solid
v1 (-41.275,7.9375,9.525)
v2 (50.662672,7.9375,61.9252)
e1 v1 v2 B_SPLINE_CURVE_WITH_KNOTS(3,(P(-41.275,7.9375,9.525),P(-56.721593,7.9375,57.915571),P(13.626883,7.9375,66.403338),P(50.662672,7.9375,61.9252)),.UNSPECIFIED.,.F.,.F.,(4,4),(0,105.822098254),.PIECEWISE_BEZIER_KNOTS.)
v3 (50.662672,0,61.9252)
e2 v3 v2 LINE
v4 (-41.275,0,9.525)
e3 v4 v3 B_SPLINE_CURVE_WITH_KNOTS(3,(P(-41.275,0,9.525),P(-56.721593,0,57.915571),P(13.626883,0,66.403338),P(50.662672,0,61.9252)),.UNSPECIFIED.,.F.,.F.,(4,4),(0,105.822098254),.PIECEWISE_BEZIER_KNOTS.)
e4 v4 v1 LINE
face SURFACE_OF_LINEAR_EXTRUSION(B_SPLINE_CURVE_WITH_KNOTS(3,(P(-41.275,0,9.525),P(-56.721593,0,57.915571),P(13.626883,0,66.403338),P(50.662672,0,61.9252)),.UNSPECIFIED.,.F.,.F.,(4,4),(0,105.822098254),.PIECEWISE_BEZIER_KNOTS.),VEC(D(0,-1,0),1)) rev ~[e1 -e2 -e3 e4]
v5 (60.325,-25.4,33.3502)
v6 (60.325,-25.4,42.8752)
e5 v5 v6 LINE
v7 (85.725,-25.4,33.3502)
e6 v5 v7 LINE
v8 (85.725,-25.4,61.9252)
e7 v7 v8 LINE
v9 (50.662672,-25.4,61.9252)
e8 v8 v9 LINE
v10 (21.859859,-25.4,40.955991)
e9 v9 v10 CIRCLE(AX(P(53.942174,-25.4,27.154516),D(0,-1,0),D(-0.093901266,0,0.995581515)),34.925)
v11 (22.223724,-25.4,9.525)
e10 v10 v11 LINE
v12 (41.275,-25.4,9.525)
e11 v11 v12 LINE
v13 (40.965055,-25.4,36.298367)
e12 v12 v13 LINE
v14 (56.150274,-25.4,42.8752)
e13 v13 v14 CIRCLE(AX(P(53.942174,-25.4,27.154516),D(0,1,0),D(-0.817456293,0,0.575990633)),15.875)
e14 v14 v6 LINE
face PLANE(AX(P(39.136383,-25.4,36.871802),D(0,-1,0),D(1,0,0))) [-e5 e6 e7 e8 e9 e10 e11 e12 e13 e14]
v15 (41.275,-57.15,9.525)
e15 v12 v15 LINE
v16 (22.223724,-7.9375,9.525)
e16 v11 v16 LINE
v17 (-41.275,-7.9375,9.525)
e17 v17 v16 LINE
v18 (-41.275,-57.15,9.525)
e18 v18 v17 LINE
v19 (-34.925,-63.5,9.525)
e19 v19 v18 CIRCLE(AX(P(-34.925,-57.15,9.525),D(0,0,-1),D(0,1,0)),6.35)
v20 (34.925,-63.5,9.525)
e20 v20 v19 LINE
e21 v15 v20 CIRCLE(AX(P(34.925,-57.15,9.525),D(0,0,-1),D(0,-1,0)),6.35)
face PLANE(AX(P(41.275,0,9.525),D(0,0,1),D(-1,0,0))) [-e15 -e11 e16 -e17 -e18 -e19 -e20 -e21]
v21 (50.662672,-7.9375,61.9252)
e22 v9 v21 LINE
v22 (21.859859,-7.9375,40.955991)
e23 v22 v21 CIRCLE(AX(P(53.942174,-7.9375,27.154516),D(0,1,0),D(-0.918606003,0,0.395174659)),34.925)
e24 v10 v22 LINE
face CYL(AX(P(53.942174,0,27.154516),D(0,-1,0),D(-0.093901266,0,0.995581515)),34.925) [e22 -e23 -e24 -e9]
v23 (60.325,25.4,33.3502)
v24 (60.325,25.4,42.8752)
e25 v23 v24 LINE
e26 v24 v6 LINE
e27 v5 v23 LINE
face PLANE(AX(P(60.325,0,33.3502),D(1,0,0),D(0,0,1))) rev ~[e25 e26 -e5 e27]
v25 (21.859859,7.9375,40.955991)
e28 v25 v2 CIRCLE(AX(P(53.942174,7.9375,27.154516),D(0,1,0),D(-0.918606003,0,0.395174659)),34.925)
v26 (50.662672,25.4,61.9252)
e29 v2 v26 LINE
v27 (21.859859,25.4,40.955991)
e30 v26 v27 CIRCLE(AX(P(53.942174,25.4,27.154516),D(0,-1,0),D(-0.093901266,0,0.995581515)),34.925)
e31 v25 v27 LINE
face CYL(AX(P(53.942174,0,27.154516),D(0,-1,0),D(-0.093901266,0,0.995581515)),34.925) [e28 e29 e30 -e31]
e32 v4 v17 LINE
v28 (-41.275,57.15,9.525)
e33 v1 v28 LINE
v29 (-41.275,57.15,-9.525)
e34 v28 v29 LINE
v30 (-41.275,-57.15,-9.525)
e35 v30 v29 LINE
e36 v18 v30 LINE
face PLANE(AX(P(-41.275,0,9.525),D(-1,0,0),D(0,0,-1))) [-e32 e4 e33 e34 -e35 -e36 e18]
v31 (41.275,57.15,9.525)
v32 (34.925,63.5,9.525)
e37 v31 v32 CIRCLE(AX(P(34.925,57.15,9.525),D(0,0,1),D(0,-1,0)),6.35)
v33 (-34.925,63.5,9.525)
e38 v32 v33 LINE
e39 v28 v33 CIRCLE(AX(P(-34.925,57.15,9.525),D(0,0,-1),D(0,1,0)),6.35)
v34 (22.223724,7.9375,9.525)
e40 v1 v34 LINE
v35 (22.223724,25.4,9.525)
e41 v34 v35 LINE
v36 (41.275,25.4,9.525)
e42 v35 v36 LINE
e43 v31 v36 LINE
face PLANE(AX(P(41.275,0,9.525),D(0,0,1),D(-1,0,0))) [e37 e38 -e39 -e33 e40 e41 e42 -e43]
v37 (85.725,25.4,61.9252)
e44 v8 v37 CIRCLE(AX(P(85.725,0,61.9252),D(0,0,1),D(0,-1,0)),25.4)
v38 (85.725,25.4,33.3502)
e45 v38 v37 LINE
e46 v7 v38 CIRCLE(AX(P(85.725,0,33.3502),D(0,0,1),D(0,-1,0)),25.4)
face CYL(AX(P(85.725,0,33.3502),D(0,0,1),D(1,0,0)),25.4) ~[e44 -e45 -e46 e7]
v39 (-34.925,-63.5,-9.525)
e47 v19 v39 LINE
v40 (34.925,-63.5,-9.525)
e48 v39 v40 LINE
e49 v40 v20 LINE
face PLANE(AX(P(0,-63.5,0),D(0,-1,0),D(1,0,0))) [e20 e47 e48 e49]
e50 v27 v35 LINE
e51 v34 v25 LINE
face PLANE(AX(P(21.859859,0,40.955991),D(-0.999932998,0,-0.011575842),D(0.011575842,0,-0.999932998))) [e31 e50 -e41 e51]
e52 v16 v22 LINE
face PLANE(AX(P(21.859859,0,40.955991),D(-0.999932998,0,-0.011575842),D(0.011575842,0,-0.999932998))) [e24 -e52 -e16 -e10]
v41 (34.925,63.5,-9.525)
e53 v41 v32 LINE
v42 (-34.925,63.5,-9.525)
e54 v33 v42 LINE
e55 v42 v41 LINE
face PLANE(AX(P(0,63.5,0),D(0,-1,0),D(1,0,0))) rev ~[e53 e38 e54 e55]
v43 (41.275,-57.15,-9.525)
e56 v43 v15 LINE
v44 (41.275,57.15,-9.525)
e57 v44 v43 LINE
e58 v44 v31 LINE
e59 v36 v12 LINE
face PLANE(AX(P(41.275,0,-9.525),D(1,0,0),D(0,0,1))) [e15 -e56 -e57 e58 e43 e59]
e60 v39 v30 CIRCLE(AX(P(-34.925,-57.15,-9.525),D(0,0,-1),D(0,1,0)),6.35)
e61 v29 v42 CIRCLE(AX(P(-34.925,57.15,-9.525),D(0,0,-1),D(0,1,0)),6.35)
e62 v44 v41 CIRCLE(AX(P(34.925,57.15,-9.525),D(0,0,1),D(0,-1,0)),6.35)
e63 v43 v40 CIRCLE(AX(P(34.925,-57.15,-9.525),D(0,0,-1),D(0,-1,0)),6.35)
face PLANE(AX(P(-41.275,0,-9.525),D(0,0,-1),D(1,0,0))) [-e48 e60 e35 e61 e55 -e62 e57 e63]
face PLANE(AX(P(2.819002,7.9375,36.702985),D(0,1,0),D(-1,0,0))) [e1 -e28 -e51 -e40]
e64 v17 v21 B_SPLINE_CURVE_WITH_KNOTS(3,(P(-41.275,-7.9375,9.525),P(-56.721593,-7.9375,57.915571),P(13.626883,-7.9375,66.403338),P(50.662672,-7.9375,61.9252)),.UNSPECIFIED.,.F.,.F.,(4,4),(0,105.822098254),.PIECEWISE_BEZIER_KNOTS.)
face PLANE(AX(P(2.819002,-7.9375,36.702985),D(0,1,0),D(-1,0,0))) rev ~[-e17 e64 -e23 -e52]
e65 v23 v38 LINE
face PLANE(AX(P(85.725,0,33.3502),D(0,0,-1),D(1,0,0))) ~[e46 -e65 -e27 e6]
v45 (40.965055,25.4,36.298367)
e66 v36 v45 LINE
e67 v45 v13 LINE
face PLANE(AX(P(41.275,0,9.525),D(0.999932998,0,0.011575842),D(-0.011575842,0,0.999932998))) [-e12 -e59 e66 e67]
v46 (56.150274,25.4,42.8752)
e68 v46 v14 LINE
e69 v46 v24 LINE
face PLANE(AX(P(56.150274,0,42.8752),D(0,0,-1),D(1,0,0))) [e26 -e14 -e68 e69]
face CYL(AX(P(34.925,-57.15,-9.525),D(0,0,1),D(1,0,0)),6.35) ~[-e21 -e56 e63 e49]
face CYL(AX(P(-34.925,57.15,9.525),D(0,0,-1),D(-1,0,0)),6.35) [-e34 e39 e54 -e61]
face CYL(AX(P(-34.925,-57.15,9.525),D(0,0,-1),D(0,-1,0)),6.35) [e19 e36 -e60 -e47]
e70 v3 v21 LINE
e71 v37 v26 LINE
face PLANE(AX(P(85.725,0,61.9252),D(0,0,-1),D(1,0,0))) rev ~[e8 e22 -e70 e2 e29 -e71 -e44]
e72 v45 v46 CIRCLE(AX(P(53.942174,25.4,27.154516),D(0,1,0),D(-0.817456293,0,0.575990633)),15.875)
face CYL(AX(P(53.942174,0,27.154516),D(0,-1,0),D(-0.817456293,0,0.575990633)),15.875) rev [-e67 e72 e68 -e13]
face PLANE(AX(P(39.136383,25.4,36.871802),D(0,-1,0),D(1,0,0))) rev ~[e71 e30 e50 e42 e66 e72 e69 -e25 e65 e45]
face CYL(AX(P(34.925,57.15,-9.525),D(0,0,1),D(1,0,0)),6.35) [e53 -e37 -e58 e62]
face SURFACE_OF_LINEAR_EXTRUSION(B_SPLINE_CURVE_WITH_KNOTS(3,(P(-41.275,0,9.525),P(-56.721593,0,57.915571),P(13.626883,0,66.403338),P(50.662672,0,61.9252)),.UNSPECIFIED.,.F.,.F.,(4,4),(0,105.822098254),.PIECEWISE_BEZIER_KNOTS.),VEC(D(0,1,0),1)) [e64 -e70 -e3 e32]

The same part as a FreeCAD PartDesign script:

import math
import FreeCAD as App
import Part
import Sketcher
Q = App.Units.Quantity


def edges_at(feature, points):
    """Names of the edges that pass closest to the given points."""
    edges = feature.Shape.Edges
    near = lambda p: min(range(len(edges)), key=lambda i: edges[i].distToShape(Part.Vertex(*p))[0])
    return sorted({f"Edge{near(p) + 1}" for p in points})

doc = App.newDocument("Part")
body = doc.addObject("PartDesign::Body", "Body")

# Sketch on XZ plane
sketch1 = body.newObject("Sketcher::SketchObject", "Sketch")
sketch1.AttachmentSupport = (doc.getObject("XZ_Plane"), [""])
sketch1.MapMode = "FlatFace"
sketch1.addGeometry(Part.LineSegment(App.Vector(-41, -10, 0), App.Vector(41, -10, 0)), False)
sketch1.addGeometry(Part.LineSegment(App.Vector(41, -10, 0), App.Vector(41, 10, 0)), False)
sketch1.addGeometry(Part.LineSegment(App.Vector(41, 10, 0), App.Vector(-41, 10, 0)), False)
sketch1.addGeometry(Part.LineSegment(App.Vector(-41, 10, 0), App.Vector(-41, -10, 0)), False)
sketch1.addConstraint(Sketcher.Constraint("Coincident", 0, 2, 1, 1))
sketch1.addConstraint(Sketcher.Constraint("Coincident", 1, 2, 2, 1))
sketch1.addConstraint(Sketcher.Constraint("Coincident", 2, 2, 3, 1))
sketch1.addConstraint(Sketcher.Constraint("Coincident", 3, 2, 0, 1))
sketch1.addConstraint(Sketcher.Constraint("Horizontal", 0))
sketch1.addConstraint(Sketcher.Constraint("Vertical", 1))
sketch1.addConstraint(Sketcher.Constraint("Horizontal", 2))
sketch1.addConstraint(Sketcher.Constraint("Vertical", 3))
sketch1.addConstraint(Sketcher.Constraint("Symmetric", 0, 2, 2, 2, -1, 1))
sketch1.addConstraint(Sketcher.Constraint("DistanceX", 0, 1, 0, 2, Q("3.25 in")))
sketch1.addConstraint(Sketcher.Constraint("DistanceY", 1, 1, 1, 2, Q("0.75 in")))
pad1 = body.newObject("PartDesign::Pad", "Pad")
pad1.Profile = sketch1
pad1.Length = Q("5 in")
pad1.Midplane = True

# Sketch on XZ plane
sketch2 = body.newObject("Sketcher::SketchObject", "Sketch001")
sketch2.AttachmentSupport = (doc.getObject("XZ_Plane"), [""])
sketch2.MapMode = "FlatFace"
sketch2.addGeometry(Part.LineSegment(App.Vector(22.2, 9.5, 0), App.Vector(41.3, 9.5, 0)), False)
sketch2.addGeometry(Part.LineSegment(App.Vector(41.3, 9.5, 0), App.Vector(41, 36.3, 0)), False)
sketch2.addGeometry(Part.ArcOfCircle(Part.Circle(App.Vector(53.9, 27.2, 0), App.Vector(0, 0, 1), 15.9), math.radians(82), math.radians(145)), False)
sketch2.addGeometry(Part.LineSegment(App.Vector(56.2, 42.9, 0), App.Vector(60.3, 42.9, 0)), False)
sketch2.addGeometry(Part.LineSegment(App.Vector(60.3, 42.9, 0), App.Vector(60.3, 33.4, 0)), False)
sketch2.addGeometry(Part.LineSegment(App.Vector(60.3, 33.4, 0), App.Vector(85.7, 33.4, 0)), False)
sketch2.addGeometry(Part.LineSegment(App.Vector(85.7, 33.4, 0), App.Vector(85.7, 61.9, 0)), False)
sketch2.addGeometry(Part.LineSegment(App.Vector(85.7, 61.9, 0), App.Vector(50.7, 61.9, 0)), False)
sketch2.addGeometry(Part.ArcOfCircle(Part.Circle(App.Vector(53.9, 27.2, 0), App.Vector(0, 0, 1), 34.9), math.radians(95), math.radians(157)), False)
sketch2.addGeometry(Part.LineSegment(App.Vector(21.9, 41, 0), App.Vector(22.2, 9.5, 0)), False)
sketch2.addConstraint(Sketcher.Constraint("Coincident", 0, 2, 1, 1))
sketch2.addConstraint(Sketcher.Constraint("Coincident", 1, 2, 2, 2))
sketch2.addConstraint(Sketcher.Constraint("Coincident", 2, 1, 3, 1))
sketch2.addConstraint(Sketcher.Constraint("Coincident", 3, 2, 4, 1))
sketch2.addConstraint(Sketcher.Constraint("Coincident", 4, 2, 5, 1))
sketch2.addConstraint(Sketcher.Constraint("Coincident", 5, 2, 6, 1))
sketch2.addConstraint(Sketcher.Constraint("Coincident", 6, 2, 7, 1))
sketch2.addConstraint(Sketcher.Constraint("Coincident", 7, 2, 8, 1))
sketch2.addConstraint(Sketcher.Constraint("Coincident", 8, 2, 9, 1))
sketch2.addConstraint(Sketcher.Constraint("Coincident", 9, 2, 0, 1))
sketch2.addConstraint(Sketcher.Constraint("Horizontal", 0))
sketch2.addConstraint(Sketcher.Constraint("Horizontal", 3))
sketch2.addConstraint(Sketcher.Constraint("Vertical", 4))
sketch2.addConstraint(Sketcher.Constraint("Horizontal", 5))
sketch2.addConstraint(Sketcher.Constraint("Vertical", 6))
sketch2.addConstraint(Sketcher.Constraint("Horizontal", 7))
sketch2.addConstraint(Sketcher.Constraint("Coincident", 8, 3, 2, 3))
sketch2.addConstraint(Sketcher.Constraint("Parallel", 1, 9))
sketch2.addConstraint(Sketcher.Constraint("DistanceX", 5, 1, 5, 2, Q("1 in")))
sketch2.addConstraint(Sketcher.Constraint("Radius", 2, Q("0.625 in")))
sketch2.addConstraint(Sketcher.Constraint("Radius", 8, Q("1.375 in")))
sketch2.addConstraint(Sketcher.Constraint("DistanceY", 4, 2, 4, 1, Q("0.375 in")))
sketch2.addConstraint(Sketcher.Constraint("DistanceY", 6, 1, 6, 2, Q("1.125 in")))
sketch2.addConstraint(Sketcher.Constraint("DistanceX", 0, 2, 3, 2, Q("0.75 in")))
sketch2.addConstraint(Sketcher.Constraint("DistanceX", -1, 1, 0, 2, Q("1.625 in")))
sketch2.addConstraint(Sketcher.Constraint("DistanceY", -1, 1, 0, 2, Q("0.375 in")))
sketch2.addConstraint(Sketcher.Constraint("DistanceY", -1, 1, 2, 1, Q("1.688 in")))
sketch2.addConstraint(Sketcher.Constraint("DistanceX", 7, 2, 7, 1, 35.062328))
sketch2.addConstraint(Sketcher.Constraint("DistanceX", 8, 3, 2, 1, 2.2081))
sketch2.addConstraint(Sketcher.Constraint("Distance", 1, 26.775161))
sketch2.addConstraint(Sketcher.Constraint("DistanceX", 0, 1, 0, 2, 19.051276))
pad2 = body.newObject("PartDesign::Pad", "Pad001")
pad2.Profile = sketch2
pad2.Length = Q("2 in")
pad2.Midplane = True

# Sketch on XZ plane
sketch3 = body.newObject("Sketcher::SketchObject", "Sketch002")
sketch3.AttachmentSupport = (doc.getObject("XZ_Plane"), [""])
sketch3.MapMode = "FlatFace"
sketch3.addGeometry(Part.BSplineCurve([App.Vector(-41.275, 9.525, 0), App.Vector(-56.721593, 57.915571, 0), App.Vector(13.626883, 66.403338, 0), App.Vector(50.662672, 61.9252, 0)], [4, 4], [0, 105.822098254], False, 3, [1, 1, 1, 1], False), False)
sketch3.addGeometry(Part.LineSegment(App.Vector(-41.275, 9.525, 0), App.Vector(22.223724, 9.525, 0)), False)
sketch3.addGeometry(Part.LineSegment(App.Vector(22.223724, 9.525, 0), App.Vector(21.859859, 40.955991, 0)), False)
sketch3.addGeometry(Part.ArcOfCircle(Part.Circle(App.Vector(53.942174, 27.154516, 0), App.Vector(0, 0, 1), 34.925), math.radians(95.388084), math.radians(156.723132)), False)
sketch3.addConstraint(Sketcher.Constraint("Block", 0))
sketch3.addConstraint(Sketcher.Constraint("Coincident", 0, 1, 1, 1))
sketch3.addConstraint(Sketcher.Constraint("Coincident", 1, 2, 2, 1))
sketch3.addConstraint(Sketcher.Constraint("Coincident", 2, 2, 3, 2))
sketch3.addConstraint(Sketcher.Constraint("Coincident", 3, 1, 0, 2))
sketch3.addConstraint(Sketcher.Constraint("Horizontal", 1))
sketch3.addConstraint(Sketcher.Constraint("Radius", 3, Q("1.375 in")))
sketch3.addConstraint(Sketcher.Constraint("DistanceX", 3, 1, 3, 3, 3.279502))
sketch3.addConstraint(Sketcher.Constraint("DistanceX", 1, 1, 1, 2, 63.498724))
sketch3.addConstraint(Sketcher.Constraint("DistanceX", -1, 1, 2, 2, 21.859859))
pad3 = body.newObject("PartDesign::Pad", "Pad002")
pad3.Profile = sketch3
pad3.Length = Q("0.625 in")
pad3.Midplane = True

# Sketch on XZ plane
sketch4 = body.newObject("Sketcher::SketchObject", "Sketch003")
sketch4.AttachmentSupport = (doc.getObject("XZ_Plane"), [""])
sketch4.MapMode = "FlatFace"
sketch4.addGeometry(Part.LineSegment(App.Vector(111, 62, 0), App.Vector(86, 62, 0)), False)
sketch4.addGeometry(Part.LineSegment(App.Vector(86, 62, 0), App.Vector(86, 33, 0)), False)
sketch4.addGeometry(Part.LineSegment(App.Vector(86, 33, 0), App.Vector(111, 33, 0)), False)
sketch4.addGeometry(Part.LineSegment(App.Vector(111, 33, 0), App.Vector(111, 62, 0)), False)
sketch4.addGeometry(Part.LineSegment(App.Vector(86, 62, 0), App.Vector(86, 33, 0)), True)  # axis
sketch4.addConstraint(Sketcher.Constraint("Coincident", 0, 2, 1, 1))
sketch4.addConstraint(Sketcher.Constraint("Coincident", 1, 2, 2, 1))
sketch4.addConstraint(Sketcher.Constraint("Coincident", 2, 2, 3, 1))
sketch4.addConstraint(Sketcher.Constraint("Coincident", 3, 2, 0, 1))
sketch4.addConstraint(Sketcher.Constraint("Horizontal", 0))
sketch4.addConstraint(Sketcher.Constraint("Vertical", 1))
sketch4.addConstraint(Sketcher.Constraint("Horizontal", 2))
sketch4.addConstraint(Sketcher.Constraint("Vertical", 3))
sketch4.addConstraint(Sketcher.Constraint("Vertical", 4))
sketch4.addConstraint(Sketcher.Constraint("Coincident", 4, 1, 0, 2))
sketch4.addConstraint(Sketcher.Constraint("Horizontal", 2, 2, 4, 2))
sketch4.addConstraint(Sketcher.Constraint("DistanceX", 0, 2, 0, 1, Q("1 in")))
sketch4.addConstraint(Sketcher.Constraint("DistanceY", 1, 2, 1, 1, Q("1.125 in")))
sketch4.addConstraint(Sketcher.Constraint("DistanceX", -1, 1, 0, 2, Q("3.375 in")))
sketch4.addConstraint(Sketcher.Constraint("DistanceY", -1, 1, 0, 2, Q("2.438 in")))
revolution = body.newObject("PartDesign::Revolution", "Revolution")
revolution.Profile = sketch4
revolution.ReferenceAxis = (sketch4, ["Axis0"])
revolution.Angle = 360
doc.recompute()

fillet = body.newObject("PartDesign::Fillet", "Fillet")
fillet.Base = (revolution, edges_at(revolution, [
    (41.275, 63.5, 0),
    (-41.275, 63.5, 0),
    (-41.275, -63.5, 0),
    (41.275, -63.5, 0),
]))
fillet.Radius = Q("0.25 in")

doc.recompute()
